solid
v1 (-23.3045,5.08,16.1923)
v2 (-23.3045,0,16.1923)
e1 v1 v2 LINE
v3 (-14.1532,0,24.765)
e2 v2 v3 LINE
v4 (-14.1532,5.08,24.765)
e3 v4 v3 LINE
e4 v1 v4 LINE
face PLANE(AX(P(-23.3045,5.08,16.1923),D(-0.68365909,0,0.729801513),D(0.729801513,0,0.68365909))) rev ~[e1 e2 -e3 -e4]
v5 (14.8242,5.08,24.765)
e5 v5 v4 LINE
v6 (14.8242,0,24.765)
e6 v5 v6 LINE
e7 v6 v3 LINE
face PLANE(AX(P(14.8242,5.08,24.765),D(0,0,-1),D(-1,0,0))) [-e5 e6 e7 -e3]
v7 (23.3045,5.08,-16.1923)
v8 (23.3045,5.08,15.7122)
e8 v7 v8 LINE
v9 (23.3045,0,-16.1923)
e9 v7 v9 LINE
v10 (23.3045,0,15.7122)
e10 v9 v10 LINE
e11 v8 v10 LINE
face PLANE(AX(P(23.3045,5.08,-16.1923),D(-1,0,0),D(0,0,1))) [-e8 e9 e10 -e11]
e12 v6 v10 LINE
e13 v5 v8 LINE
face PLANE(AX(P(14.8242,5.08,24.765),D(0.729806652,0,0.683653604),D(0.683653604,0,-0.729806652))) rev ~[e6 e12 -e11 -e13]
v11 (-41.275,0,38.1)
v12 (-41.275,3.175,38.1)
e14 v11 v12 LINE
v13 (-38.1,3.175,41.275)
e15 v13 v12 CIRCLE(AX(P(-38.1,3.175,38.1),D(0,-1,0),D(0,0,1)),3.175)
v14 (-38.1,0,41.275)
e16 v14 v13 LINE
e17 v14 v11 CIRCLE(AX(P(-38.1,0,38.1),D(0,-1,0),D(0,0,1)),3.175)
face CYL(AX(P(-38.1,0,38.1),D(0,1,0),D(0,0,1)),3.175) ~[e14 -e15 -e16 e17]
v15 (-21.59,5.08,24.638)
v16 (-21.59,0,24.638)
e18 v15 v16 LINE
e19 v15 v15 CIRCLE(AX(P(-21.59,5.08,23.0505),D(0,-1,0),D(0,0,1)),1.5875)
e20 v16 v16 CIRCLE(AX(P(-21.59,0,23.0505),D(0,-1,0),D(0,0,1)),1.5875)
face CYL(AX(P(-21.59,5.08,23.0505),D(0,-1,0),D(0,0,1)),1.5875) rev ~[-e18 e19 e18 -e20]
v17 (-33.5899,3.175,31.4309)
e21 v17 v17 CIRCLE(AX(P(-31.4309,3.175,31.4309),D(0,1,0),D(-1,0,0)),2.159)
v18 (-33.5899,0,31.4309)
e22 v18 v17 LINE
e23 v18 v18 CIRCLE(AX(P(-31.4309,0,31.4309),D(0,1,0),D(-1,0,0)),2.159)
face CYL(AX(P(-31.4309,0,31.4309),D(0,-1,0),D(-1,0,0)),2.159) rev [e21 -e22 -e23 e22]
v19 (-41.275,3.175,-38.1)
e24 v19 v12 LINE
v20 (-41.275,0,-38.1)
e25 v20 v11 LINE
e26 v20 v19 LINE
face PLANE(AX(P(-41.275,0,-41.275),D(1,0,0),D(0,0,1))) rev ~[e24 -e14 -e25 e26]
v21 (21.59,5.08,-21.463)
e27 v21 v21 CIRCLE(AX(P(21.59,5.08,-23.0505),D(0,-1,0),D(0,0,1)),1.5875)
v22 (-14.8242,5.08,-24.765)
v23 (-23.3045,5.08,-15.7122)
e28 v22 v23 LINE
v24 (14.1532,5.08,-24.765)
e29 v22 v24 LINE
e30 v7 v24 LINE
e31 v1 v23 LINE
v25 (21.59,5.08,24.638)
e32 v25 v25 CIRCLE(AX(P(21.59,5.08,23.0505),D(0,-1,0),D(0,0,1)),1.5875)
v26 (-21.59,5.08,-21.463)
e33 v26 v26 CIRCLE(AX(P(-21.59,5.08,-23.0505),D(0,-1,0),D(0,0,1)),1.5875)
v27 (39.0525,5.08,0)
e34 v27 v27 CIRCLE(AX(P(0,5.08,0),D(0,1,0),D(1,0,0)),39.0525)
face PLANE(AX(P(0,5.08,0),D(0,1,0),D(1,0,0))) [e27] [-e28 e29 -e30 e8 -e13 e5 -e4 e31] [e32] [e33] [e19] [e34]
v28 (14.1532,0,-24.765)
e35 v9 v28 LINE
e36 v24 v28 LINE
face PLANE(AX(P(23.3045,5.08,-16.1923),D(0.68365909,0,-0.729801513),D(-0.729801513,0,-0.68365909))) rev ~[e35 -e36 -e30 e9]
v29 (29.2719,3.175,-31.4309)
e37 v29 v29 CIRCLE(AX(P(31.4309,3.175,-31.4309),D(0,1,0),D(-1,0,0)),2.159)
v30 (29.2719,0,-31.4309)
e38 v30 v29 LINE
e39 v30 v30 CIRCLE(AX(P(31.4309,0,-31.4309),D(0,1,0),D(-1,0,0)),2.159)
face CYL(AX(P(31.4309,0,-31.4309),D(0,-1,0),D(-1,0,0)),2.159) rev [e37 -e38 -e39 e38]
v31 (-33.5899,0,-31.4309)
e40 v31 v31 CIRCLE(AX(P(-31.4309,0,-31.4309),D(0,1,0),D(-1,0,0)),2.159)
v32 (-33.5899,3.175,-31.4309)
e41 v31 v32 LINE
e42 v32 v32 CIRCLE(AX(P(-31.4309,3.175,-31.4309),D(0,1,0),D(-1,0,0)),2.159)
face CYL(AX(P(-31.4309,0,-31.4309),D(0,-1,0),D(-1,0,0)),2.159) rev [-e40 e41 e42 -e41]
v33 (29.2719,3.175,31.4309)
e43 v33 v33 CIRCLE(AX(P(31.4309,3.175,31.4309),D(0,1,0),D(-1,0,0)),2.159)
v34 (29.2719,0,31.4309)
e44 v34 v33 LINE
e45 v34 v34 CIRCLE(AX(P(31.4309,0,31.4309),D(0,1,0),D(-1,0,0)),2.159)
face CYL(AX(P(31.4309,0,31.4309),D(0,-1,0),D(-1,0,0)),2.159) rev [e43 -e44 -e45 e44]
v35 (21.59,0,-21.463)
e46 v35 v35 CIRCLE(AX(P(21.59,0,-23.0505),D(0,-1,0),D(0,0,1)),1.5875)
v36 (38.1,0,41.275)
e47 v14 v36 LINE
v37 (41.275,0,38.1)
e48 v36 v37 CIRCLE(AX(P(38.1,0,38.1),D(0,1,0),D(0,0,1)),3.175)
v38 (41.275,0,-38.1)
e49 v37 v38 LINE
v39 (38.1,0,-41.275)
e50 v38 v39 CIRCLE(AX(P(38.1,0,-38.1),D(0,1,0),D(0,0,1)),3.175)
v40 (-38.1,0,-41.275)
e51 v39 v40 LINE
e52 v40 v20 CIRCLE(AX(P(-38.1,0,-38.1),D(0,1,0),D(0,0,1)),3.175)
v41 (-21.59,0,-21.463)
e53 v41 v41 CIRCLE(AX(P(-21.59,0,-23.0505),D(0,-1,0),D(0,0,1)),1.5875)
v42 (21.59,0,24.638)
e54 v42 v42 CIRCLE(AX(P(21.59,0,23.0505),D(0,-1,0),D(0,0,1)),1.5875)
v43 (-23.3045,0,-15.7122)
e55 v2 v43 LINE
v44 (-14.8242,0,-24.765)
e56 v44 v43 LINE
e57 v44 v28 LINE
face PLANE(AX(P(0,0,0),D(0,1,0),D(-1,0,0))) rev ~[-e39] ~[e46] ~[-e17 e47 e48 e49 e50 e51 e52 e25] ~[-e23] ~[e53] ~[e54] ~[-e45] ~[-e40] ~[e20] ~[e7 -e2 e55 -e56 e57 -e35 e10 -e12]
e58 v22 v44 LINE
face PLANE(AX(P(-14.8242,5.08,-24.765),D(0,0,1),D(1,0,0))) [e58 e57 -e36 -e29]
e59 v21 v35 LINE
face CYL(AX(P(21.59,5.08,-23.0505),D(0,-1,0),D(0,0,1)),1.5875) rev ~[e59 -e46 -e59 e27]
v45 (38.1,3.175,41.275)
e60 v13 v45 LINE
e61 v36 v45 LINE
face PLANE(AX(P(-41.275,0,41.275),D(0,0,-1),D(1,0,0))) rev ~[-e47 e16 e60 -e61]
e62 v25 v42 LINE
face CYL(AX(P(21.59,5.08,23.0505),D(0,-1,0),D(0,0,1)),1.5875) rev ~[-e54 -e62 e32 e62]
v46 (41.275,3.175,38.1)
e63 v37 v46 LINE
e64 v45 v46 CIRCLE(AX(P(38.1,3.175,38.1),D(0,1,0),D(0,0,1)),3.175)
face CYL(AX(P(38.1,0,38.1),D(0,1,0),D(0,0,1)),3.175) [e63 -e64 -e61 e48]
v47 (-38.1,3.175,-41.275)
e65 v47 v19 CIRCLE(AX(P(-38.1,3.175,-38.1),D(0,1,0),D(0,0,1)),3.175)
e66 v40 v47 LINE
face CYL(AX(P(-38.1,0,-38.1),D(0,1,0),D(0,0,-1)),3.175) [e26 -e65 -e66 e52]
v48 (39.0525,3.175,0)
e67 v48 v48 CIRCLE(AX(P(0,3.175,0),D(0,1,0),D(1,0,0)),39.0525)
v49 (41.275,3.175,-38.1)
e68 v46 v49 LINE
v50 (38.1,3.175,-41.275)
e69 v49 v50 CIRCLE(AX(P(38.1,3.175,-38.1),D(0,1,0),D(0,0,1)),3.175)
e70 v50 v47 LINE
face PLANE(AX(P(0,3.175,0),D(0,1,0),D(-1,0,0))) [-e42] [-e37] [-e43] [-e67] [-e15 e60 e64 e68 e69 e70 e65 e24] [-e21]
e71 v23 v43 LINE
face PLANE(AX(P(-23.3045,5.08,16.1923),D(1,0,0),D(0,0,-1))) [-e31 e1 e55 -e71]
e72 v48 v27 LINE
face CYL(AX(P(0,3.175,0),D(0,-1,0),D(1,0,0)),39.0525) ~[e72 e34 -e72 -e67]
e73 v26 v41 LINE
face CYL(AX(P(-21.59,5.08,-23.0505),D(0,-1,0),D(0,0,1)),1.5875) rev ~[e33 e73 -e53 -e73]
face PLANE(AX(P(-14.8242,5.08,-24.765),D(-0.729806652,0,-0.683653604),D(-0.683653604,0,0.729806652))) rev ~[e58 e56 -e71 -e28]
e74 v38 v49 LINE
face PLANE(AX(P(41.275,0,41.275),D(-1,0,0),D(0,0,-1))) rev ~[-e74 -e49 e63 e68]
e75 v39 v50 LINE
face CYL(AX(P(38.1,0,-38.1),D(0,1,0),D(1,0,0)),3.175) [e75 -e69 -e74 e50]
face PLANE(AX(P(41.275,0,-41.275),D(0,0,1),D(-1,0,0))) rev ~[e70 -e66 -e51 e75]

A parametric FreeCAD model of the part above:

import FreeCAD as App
import Part
import Sketcher

V = App.Vector
Q = App.Units.Quantity


def edges_at(feature, points):
    """Names of the edges that pass closest to the given points."""
    edges = feature.Shape.Edges
    near = lambda p: min(range(len(edges)), key=lambda i: edges[i].distToShape(Part.Vertex(*p))[0])
    return sorted({f"Edge{near(p) + 1}" for p in points})

doc = App.newDocument("Part")
body = doc.addObject("PartDesign::Body", "Body")

sketch1 = doc.addObject("Sketcher::SketchObject", "Sketch")
body.addObject(sketch1)
sketch1.AttachmentSupport = (doc.XZ_Plane, [""])
sketch1.MapMode = "FlatFace"
sketch1.addGeometry([
    Part.LineSegment(V(-41.3, -41.3, 0), V(-41.3, 41.3, 0)),
    Part.LineSegment(V(-41.3, 41.3, 0), V(41.3, 41.3, 0)),
    Part.LineSegment(V(41.3, 41.3, 0), V(41.3, -41.3, 0)),
    Part.LineSegment(V(41.3, -41.3, 0), V(-41.3, -41.3, 0)),
    Part.Circle(V(31.4, -31.4, 0), V(0, 0, 1), 2.2),
    Part.Circle(V(-31.4, -31.4, 0), V(0, 0, 1), 2.2),
    Part.Circle(V(31.4, 31.4, 0), V(0, 0, 1), 2.2),
    Part.Circle(V(-31.4, 31.4, 0), V(0, 0, 1), 2.2),
], False)
sketch1.addConstraint([
    Sketcher.Constraint("Coincident", 0, 2, 1, 1),
    Sketcher.Constraint("Coincident", 1, 2, 2, 1),
    Sketcher.Constraint("Coincident", 2, 2, 3, 1),
    Sketcher.Constraint("Coincident", 3, 2, 0, 1),
    Sketcher.Constraint("Vertical", 0),
    Sketcher.Constraint("Horizontal", 1),
    Sketcher.Constraint("Vertical", 2),
    Sketcher.Constraint("Horizontal", 3),
    Sketcher.Constraint("Equal", 4, 5),
    Sketcher.Constraint("Equal", 5, 6),
    Sketcher.Constraint("Equal", 6, 7),
    Sketcher.Constraint("Symmetric", 5, 3, 6, 3, -1, 1),
    Sketcher.Constraint("Symmetric", 4, 3, 7, 3, -1, 1),
    Sketcher.Constraint("Symmetric", 0, 2, 2, 2, -1, 1),
    Sketcher.Constraint("Symmetric", 4, 3, 5, 3, -2),
    Sketcher.Constraint("Equal", 3, 0),
    Sketcher.Constraint("Diameter", 4, Q("0.17 in")),
    Sketcher.Constraint("DistanceX", 1, 1, 1, 2, Q("3.25 in")),
    Sketcher.Constraint("DistanceX", -1, 1, 4, 3, 31.431),
    Sketcher.Constraint("DistanceY", 4, 3, -1, 1, 31.431),
])
pad1 = doc.addObject("PartDesign::Pad", "Pad")
body.addObject(pad1)
pad1.Profile = sketch1
pad1.Length = Q("0.125 in")
pad1.Reversed = True

sketch2 = doc.addObject("Sketcher::SketchObject", "Sketch001")
body.addObject(sketch2)
sketch2.AttachmentSupport = (doc.XZ_Plane, [""])
sketch2.MapMode = "FlatFace"
sketch2.AttachmentOffset = App.Placement(V(0, 0, -0.125 * 25.4), App.Rotation())
sketch2.addGeometry(Part.Circle(V(0, 0, 0), V(0, 0, 1), 39), False)
sketch2.addConstraint([
    Sketcher.Constraint("Coincident", 0, 3, -1, 1),
    Sketcher.Constraint("Diameter", 0, Q("3.075 in")),
])
pad2 = doc.addObject("PartDesign::Pad", "Pad001")
body.addObject(pad2)
pad2.Profile = sketch2
pad2.Length = Q("0.075 in")
pad2.Reversed = True
doc.recompute()

fillet = doc.addObject("PartDesign::Fillet", "Fillet")
body.addObject(fillet)
fillet.Base = (pad2, edges_at(pad2, [(41.275, 1.587, 41.275)]))
fillet.Radius = Q("0.125 in")
doc.recompute()

fillet2 = doc.addObject("PartDesign::Fillet", "Fillet001")
body.addObject(fillet2)
fillet2.Base = (fillet, edges_at(fillet, [(-41.275, 1.587, 41.275)]))
fillet2.Radius = Q("0.125 in")
doc.recompute()

fillet3 = doc.addObject("PartDesign::Fillet", "Fillet002")
body.addObject(fillet3)
fillet3.Base = (fillet2, edges_at(fillet2, [(41.275, 1.587, -41.275)]))
fillet3.Radius = Q("0.125 in")
doc.recompute()

fillet4 = doc.addObject("PartDesign::Fillet", "Fillet003")
body.addObject(fillet4)
fillet4.Base = (fillet3, edges_at(fillet3, [(-41.275, 1.587, -41.275)]))
fillet4.Radius = Q("0.125 in")

sketch3 = doc.addObject("Sketcher::SketchObject", "Sketch002")
body.addObject(sketch3)
sketch3.AttachmentSupport = (doc.XZ_Plane, [""])
sketch3.MapMode = "FlatFace"
sketch3.AttachmentOffset = App.Placement(V(0, 0, -0.2 * 25.4), App.Rotation())
sketch3.addGeometry([
    Part.LineSegment(V(14, -25, 0), V(-15, -25, 0)),
    Part.LineSegment(V(-15, -25, 0), V(-23, -16, 0)),
    Part.LineSegment(V(-23, -16, 0), V(-23, 16, 0)),
    Part.LineSegment(V(-23, 16, 0), V(-14, 25, 0)),
    Part.LineSegment(V(-14, 25, 0), V(15, 25, 0)),
    Part.LineSegment(V(15, 25, 0), V(23, 16, 0)),
    Part.LineSegment(V(23, 16, 0), V(23, -16, 0)),
    Part.LineSegment(V(23, -16, 0), V(14, -25, 0)),
], False)
sketch3.addConstraint([
    Sketcher.Constraint("Coincident", 0, 2, 1, 1),
    Sketcher.Constraint("Coincident", 1, 2, 2, 1),
    Sketcher.Constraint("Coincident", 2, 2, 3, 1),
    Sketcher.Constraint("Coincident", 3, 2, 4, 1),
    Sketcher.Constraint("Coincident", 4, 2, 5, 1),
    Sketcher.Constraint("Coincident", 5, 2, 6, 1),
    Sketcher.Constraint("Coincident", 6, 2, 7, 1),
    Sketcher.Constraint("Coincident", 7, 2, 0, 1),
    Sketcher.Constraint("Horizontal", 0),
    Sketcher.Constraint("Vertical", 2),
    Sketcher.Constraint("Horizontal", 4),
    Sketcher.Constraint("Vertical", 6),
    Sketcher.Constraint("Symmetric", 0, 2, 4, 2, -1, 1),
    Sketcher.Constraint("Symmetric", 1, 2, 5, 2, -1, 1),
    Sketcher.Constraint("Perpendicular", 1, 3),
    Sketcher.Constraint("Perpendicular", 5, 7),
    Sketcher.Constraint("Equal", 0, 4),
    Sketcher.Constraint("Angle", 1, Q("133.1298 deg")),
    Sketcher.Constraint("DistanceY", 0, 2, 3, 2, Q("1.95 in")),
    Sketcher.Constraint("DistanceX", 2, 2, 5, 2, Q("1.835 in")),
    Sketcher.Constraint("DistanceX", 0, 2, 0, 1, 28.9774),
    Sketcher.Constraint("DistanceY", 2, 1, 2, 2, 31.9045),
])
pocket1 = doc.addObject("PartDesign::Pocket", "Pocket")
body.addObject(pocket1)
pocket1.Profile = sketch3
pocket1.Type = "ThroughAll"
pocket1.Reversed = True

sketch4 = doc.addObject("Sketcher::SketchObject", "Sketch003")
body.addObject(sketch4)
sketch4.AttachmentSupport = (doc.XZ_Plane, [""])
sketch4.MapMode = "FlatFace"
sketch4.AttachmentOffset = App.Placement(V(0, 0, -0.2 * 25.4), App.Rotation())
sketch4.addGeometry([
    Part.Circle(V(-21.6, -23.1, 0), V(0, 0, 1), 1.6),
    Part.Circle(V(21.6, 23.1, 0), V(0, 0, 1), 1.6),
    Part.Circle(V(21.6, -23.1, 0), V(0, 0, 1), 1.6),
    Part.Circle(V(-21.6, 23.1, 0), V(0, 0, 1), 1.6),
], False)
sketch4.addConstraint([
    Sketcher.Constraint("Equal", 0, 1),
    Sketcher.Constraint("Equal", 1, 2),
    Sketcher.Constraint("Equal", 2, 3),
    Sketcher.Constraint("Symmetric", 0, 3, 1, 3, -1, 1),
    Sketcher.Constraint("Symmetric", 2, 3, 3, 3, -1, 1),
    Sketcher.Constraint("Symmetric", 0, 3, 2, 3, -2),
    Sketcher.Constraint("Diameter", 0, Q("0.125 in")),
    Sketcher.Constraint("DistanceX", 0, 3, 1, 3, Q("1.7 in")),
    Sketcher.Constraint("DistanceY", 0, 3, 1, 3, Q("1.815 in")),
])
doc.recompute()
hole = doc.addObject("PartDesign::Hole", "Hole")
body.addObject(hole)
hole.Profile = sketch4
hole.ThreadType = "None"
hole.Diameter = Q("0.125 in")
hole.DepthType = "ThroughAll"
hole.Reversed = True

doc.recompute()
